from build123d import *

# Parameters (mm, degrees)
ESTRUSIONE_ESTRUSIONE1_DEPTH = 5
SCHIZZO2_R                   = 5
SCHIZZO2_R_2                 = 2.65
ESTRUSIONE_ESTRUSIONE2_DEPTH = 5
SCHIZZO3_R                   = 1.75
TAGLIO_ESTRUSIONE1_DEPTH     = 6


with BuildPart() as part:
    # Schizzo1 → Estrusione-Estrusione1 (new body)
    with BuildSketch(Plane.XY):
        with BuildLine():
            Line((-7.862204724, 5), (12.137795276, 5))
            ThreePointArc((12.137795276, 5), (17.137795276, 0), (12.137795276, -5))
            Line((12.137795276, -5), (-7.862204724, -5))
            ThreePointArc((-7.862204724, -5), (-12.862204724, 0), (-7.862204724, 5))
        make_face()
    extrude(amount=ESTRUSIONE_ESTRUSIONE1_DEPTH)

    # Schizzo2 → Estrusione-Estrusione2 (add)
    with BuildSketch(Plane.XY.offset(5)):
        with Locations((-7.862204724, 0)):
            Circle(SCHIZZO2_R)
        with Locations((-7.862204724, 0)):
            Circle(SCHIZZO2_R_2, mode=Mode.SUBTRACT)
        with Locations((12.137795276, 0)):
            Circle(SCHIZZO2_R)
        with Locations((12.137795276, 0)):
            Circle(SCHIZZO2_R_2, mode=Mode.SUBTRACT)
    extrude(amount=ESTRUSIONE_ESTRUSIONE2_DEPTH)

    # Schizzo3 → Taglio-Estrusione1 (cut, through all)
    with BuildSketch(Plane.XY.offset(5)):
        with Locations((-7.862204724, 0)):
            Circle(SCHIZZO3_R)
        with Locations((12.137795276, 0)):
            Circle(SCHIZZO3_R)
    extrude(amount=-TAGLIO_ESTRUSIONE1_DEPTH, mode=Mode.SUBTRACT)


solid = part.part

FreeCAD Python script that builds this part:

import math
import FreeCAD as App
import Part
import Sketcher

doc = App.newDocument("Part")
body = doc.addObject("PartDesign::Body", "Body")

sketch1 = body.newObject("Sketcher::SketchObject", "Sketch")
sketch1.AttachmentSupport = (doc.getObject("XY_Plane"), [""])
sketch1.MapMode = "FlatFace"
sketch1.addGeometry([
    Part.LineSegment(App.Vector(12, 5, 0), App.Vector(-8, 5, 0)),
    Part.ArcOfCircle(Part.Circle(App.Vector(-8, 0, 0), App.Vector(0, 0, 1), 5), math.radians(90), math.radians(270)),
    Part.LineSegment(App.Vector(-8, -5, 0), App.Vector(12, -5, 0)),
    Part.ArcOfCircle(Part.Circle(App.Vector(12, 0, 0), App.Vector(0, 0, 1), 5), math.radians(-90), math.radians(90)),
], False)
sketch1.addConstraint([
    Sketcher.Constraint("Tangent", 0, 2, 1, 1),
    Sketcher.Constraint("Tangent", 1, 2, 2, 1),
    Sketcher.Constraint("Tangent", 2, 2, 3, 1),
    Sketcher.Constraint("Tangent", 3, 2, 0, 1),
    Sketcher.Constraint("Horizontal", 0),
    Sketcher.Constraint("Horizontal", 2),
    Sketcher.Constraint("PointOnObject", 1, 3, -1),
    Sketcher.Constraint("Radius", 1, 5.0),
    Sketcher.Constraint("DistanceX", 0, 2, 0, 1, 20.0),
    Sketcher.Constraint("DistanceX", 1, 3, -1, 1, 7.862205),
])
pad1 = body.newObject("PartDesign::Pad", "Pad")
pad1.Profile = sketch1
pad1.Length = 5

sketch2 = body.newObject("Sketcher::SketchObject", "Sketch001")
sketch2.AttachmentSupport = (doc.getObject("XY_Plane"), [""])
sketch2.MapMode = "FlatFace"
sketch2.AttachmentOffset = App.Placement(App.Vector(0, 0, 5), App.Rotation())
sketch2.addGeometry([
    Part.Circle(App.Vector(-7.9, 0, 0), App.Vector(0, 0, 1), 5),
    Part.Circle(App.Vector(-7.9, 0, 0), App.Vector(0, 0, 1), 2.6),
    Part.Circle(App.Vector(12.1, 0, 0), App.Vector(0, 0, 1), 5),
    Part.Circle(App.Vector(12.1, 0, 0), App.Vector(0, 0, 1), 2.6),
], False)
sketch2.addConstraint([
    Sketcher.Constraint("Coincident", 1, 3, 0, 3),
    Sketcher.Constraint("Coincident", 3, 3, 2, 3),
    Sketcher.Constraint("Equal", 0, 2),
    Sketcher.Constraint("Equal", 1, 3),
    Sketcher.Constraint("PointOnObject", 0, 3, -1),
    Sketcher.Constraint("PointOnObject", 2, 3, -1),
    Sketcher.Constraint("Diameter", 0, 10.0),
    Sketcher.Constraint("Diameter", 1, 5.3),
    Sketcher.Constraint("DistanceX", 0, 3, 2, 3, 20.0),
    Sketcher.Constraint("DistanceX", 0, 3, -1, 1, 7.862205),
])
pad2 = body.newObject("PartDesign::Pad", "Pad001")
pad2.Profile = sketch2
pad2.Length = 5

sketch3 = body.newObject("Sketcher::SketchObject", "Sketch002")
sketch3.AttachmentSupport = (doc.getObject("XY_Plane"), [""])
sketch3.MapMode = "FlatFace"
sketch3.AttachmentOffset = App.Placement(App.Vector(0, 0, 5), App.Rotation())
sketch3.addGeometry([
    Part.Circle(App.Vector(-7.9, 0, 0), App.Vector(0, 0, 1), 1.8),
    Part.Circle(App.Vector(12.1, 0, 0), App.Vector(0, 0, 1), 1.8),
], False)
sketch3.addConstraint([
    Sketcher.Constraint("Equal", 0, 1),
    Sketcher.Constraint("PointOnObject", 0, 3, -1),
    Sketcher.Constraint("PointOnObject", 1, 3, -1),
    Sketcher.Constraint("Diameter", 0, 3.5),
    Sketcher.Constraint("DistanceX", 0, 3, 1, 3, 20.0),
    Sketcher.Constraint("DistanceX", 0, 3, -1, 1, 7.862205),
])
pocket1 = body.newObject("PartDesign::Pocket", "Pocket")
pocket1.Profile = sketch3
pocket1.Type = "ThroughAll"

doc.recompute()
